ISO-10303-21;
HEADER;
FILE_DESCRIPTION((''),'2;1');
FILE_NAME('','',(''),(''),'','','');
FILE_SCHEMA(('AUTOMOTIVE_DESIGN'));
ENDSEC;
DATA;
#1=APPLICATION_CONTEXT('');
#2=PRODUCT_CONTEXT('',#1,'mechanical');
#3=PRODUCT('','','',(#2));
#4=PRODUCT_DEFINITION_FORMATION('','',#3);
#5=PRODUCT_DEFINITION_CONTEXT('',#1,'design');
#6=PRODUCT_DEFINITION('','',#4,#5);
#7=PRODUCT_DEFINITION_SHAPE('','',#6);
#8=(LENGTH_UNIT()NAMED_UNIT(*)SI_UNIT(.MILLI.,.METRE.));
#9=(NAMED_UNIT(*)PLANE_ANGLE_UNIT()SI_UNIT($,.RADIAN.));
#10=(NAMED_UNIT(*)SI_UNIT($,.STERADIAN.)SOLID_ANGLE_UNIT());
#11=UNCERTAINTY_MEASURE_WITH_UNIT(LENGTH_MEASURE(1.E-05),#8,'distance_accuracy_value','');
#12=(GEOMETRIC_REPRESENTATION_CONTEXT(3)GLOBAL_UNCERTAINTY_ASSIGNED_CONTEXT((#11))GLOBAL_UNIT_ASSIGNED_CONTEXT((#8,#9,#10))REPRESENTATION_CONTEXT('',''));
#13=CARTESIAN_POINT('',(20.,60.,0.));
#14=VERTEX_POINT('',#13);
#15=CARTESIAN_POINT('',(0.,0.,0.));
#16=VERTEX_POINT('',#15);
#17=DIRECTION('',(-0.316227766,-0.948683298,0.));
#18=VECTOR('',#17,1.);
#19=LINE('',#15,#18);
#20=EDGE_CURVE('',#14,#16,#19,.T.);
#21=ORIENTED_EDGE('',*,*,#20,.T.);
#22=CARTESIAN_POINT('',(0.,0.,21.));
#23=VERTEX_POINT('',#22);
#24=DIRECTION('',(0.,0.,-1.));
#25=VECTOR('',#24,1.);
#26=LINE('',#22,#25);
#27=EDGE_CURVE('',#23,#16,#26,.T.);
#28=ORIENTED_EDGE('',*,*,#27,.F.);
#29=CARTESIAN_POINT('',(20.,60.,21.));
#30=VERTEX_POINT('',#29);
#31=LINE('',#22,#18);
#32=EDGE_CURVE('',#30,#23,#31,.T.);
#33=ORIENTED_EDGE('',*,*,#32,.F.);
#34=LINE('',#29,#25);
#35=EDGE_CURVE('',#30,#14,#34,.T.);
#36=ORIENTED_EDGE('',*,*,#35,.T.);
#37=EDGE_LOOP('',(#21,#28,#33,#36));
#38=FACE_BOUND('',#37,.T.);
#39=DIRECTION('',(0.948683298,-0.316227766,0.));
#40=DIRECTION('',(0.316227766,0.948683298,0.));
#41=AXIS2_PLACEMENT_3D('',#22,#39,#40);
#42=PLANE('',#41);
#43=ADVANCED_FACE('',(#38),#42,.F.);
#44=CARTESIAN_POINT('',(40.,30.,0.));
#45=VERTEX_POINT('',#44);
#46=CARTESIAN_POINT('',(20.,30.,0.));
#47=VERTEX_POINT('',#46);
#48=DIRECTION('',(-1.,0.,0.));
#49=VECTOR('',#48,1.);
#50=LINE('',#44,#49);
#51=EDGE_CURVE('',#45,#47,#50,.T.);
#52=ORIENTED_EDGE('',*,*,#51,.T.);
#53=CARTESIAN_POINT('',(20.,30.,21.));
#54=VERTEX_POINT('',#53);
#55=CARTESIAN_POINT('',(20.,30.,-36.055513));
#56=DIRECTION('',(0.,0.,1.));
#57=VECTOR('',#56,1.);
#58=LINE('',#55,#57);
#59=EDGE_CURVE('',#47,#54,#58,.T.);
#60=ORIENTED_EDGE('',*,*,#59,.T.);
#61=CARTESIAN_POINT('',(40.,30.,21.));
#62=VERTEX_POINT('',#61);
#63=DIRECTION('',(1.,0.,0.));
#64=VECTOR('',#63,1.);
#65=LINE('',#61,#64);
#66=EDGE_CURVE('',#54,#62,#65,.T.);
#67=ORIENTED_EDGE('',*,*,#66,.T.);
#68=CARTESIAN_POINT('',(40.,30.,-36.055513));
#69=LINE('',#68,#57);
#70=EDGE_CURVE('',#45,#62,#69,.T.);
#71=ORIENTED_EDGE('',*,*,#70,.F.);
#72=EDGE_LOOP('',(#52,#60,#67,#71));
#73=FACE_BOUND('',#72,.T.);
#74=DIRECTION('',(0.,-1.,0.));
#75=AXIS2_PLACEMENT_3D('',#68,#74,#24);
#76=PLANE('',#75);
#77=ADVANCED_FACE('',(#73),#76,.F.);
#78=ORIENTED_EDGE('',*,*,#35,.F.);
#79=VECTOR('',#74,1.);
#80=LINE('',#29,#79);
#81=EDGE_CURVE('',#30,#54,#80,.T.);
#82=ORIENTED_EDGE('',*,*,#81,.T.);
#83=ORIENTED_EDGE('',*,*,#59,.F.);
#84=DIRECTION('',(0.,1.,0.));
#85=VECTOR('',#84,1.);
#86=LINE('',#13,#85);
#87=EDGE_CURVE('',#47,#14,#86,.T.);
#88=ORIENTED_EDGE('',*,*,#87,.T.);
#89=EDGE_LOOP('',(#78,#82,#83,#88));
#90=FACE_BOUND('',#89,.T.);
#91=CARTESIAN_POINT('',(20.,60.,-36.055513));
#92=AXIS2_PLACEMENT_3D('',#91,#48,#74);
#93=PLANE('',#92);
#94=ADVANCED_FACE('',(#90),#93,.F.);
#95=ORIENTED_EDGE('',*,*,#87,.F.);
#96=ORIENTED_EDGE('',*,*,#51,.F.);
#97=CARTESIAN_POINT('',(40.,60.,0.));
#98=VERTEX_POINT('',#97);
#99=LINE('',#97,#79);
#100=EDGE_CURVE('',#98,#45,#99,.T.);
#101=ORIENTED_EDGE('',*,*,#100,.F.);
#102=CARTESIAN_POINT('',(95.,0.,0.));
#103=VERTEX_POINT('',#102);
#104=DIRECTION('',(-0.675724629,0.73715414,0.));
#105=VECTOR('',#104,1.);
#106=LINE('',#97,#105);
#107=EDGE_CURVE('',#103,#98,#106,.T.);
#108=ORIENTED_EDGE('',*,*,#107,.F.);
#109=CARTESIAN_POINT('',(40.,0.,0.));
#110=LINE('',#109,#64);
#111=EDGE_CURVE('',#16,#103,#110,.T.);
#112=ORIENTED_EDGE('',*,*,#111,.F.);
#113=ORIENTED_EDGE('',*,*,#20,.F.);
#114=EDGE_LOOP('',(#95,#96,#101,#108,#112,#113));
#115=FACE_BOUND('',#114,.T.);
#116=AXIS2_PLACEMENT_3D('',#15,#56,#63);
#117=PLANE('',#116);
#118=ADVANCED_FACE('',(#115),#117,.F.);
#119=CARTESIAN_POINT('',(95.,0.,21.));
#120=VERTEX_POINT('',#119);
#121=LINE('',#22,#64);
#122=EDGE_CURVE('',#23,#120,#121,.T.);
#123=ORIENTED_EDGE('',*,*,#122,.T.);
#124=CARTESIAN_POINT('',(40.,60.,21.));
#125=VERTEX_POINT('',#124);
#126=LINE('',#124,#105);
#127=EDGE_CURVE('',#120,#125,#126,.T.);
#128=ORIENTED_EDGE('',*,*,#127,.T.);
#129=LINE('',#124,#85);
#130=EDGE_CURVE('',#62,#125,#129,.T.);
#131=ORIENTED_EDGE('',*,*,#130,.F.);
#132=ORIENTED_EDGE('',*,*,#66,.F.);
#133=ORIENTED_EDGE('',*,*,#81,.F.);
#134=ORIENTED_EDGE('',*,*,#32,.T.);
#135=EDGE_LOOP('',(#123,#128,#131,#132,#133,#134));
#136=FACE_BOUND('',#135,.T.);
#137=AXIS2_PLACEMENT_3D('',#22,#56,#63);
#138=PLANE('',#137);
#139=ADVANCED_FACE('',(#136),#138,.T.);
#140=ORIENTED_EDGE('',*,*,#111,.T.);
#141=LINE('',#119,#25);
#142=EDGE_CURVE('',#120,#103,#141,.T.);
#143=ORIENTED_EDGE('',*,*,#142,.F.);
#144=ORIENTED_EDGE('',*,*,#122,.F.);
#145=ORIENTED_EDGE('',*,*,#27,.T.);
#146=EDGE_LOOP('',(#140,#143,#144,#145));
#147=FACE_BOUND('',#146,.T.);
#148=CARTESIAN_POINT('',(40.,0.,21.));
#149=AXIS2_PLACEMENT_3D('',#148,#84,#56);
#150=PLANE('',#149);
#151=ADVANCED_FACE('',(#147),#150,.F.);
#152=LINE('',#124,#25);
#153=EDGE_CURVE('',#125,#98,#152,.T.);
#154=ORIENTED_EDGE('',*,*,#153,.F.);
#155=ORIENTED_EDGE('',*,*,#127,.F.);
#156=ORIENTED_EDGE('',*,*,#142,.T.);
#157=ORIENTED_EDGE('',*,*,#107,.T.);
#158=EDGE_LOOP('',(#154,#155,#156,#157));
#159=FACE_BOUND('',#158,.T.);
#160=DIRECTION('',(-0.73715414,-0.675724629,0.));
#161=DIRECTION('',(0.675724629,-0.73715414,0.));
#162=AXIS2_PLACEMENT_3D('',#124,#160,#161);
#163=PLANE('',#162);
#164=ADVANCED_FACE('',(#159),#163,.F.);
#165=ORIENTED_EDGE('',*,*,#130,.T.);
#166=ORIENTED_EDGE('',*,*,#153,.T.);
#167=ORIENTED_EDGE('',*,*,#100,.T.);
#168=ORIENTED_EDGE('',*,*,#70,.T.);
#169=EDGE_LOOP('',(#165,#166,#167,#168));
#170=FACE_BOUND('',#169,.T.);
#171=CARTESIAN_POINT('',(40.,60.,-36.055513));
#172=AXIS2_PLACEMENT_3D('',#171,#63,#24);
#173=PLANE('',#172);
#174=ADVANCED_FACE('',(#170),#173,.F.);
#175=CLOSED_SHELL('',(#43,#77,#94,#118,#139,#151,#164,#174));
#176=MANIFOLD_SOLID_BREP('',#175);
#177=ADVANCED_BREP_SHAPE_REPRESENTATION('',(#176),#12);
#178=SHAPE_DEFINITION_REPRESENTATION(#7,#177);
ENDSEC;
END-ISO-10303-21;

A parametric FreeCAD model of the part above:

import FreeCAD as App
import Part
import Sketcher

doc = App.newDocument("Part")
params = doc.addObject("Spreadsheet::Sheet", "Params")
for row, (alias, value) in enumerate([
    ("sketch1_width", "95 mm"),
    ("sketch1_width2", "20 mm"),
    ("pad1_length", "21 mm"),
    ("sketch2_width", "20 mm"),
    ("sketch2_height", "30 mm"),
    ("pocket1_length", "21 mm"),
], start=1):
    params.set(f"A{row}", alias)
    params.set(f"B{row}", "=" + value)
    params.setAlias(f"B{row}", alias)

body = doc.addObject("PartDesign::Body", "Body")

# Sketch on XY plane
sketch1 = doc.addObject("Sketcher::SketchObject", "Sketch")
body.addObject(sketch1)
sketch1.AttachmentSupport = (doc.XY_Plane, [""])
sketch1.MapMode = "FlatFace"
sketch1.addGeometry([
    Part.LineSegment(App.Vector(20, 60, 0), App.Vector(0, 0, 0)),
    Part.LineSegment(App.Vector(0, 0, 0), App.Vector(95, 0, 0)),
    Part.LineSegment(App.Vector(95, 0, 0), App.Vector(40, 60, 0)),
    Part.LineSegment(App.Vector(40, 60, 0), App.Vector(20, 60, 0)),
], False)
sketch1.addConstraint([
    Sketcher.Constraint("Coincident", 0, 2, 1, 1),
    Sketcher.Constraint("Coincident", 1, 2, 2, 1),
    Sketcher.Constraint("Coincident", 2, 2, 3, 1),
    Sketcher.Constraint("Coincident", 3, 2, 0, 1),
    Sketcher.Constraint("Horizontal", 1),
    Sketcher.Constraint("Horizontal", 3),
    Sketcher.Constraint("Coincident", 0, 2, -1, 1),
    Sketcher.Constraint("DistanceX", 1, 1, 1, 2, 95.0),
    Sketcher.Constraint("DistanceX", 3, 2, 3, 1, 20.0),
    Sketcher.Constraint("DistanceX", -1, 1, 2, 2, 40.0),
    Sketcher.Constraint("DistanceY", -1, 1, 2, 2, 60.0),
])
sketch1.setExpression("Constraints[7]", "Params.sketch1_width")
sketch1.setExpression("Constraints[8]", "Params.sketch1_width2")
pad1 = doc.addObject("PartDesign::Pad", "Pad")
body.addObject(pad1)
pad1.Profile = sketch1
pad1.setExpression("Length", "Params.pad1_length")

# Sketch on XY plane
sketch2 = doc.addObject("Sketcher::SketchObject", "Sketch001")
body.addObject(sketch2)
sketch2.AttachmentSupport = (doc.XY_Plane, [""])
sketch2.MapMode = "FlatFace"
sketch2.AttachmentOffset = App.Placement(App.Vector(0, 0, 21), App.Rotation())
sketch2.addGeometry([
    Part.LineSegment(App.Vector(20, 60, 0), App.Vector(20, 30, 0)),
    Part.LineSegment(App.Vector(20, 30, 0), App.Vector(40, 30, 0)),
    Part.LineSegment(App.Vector(40, 30, 0), App.Vector(40, 60, 0)),
    Part.LineSegment(App.Vector(40, 60, 0), App.Vector(20, 60, 0)),
], False)
sketch2.addConstraint([
    Sketcher.Constraint("Coincident", 0, 2, 1, 1),
    Sketcher.Constraint("Coincident", 1, 2, 2, 1),
    Sketcher.Constraint("Coincident", 2, 2, 3, 1),
    Sketcher.Constraint("Coincident", 3, 2, 0, 1),
    Sketcher.Constraint("Vertical", 0),
    Sketcher.Constraint("Horizontal", 1),
    Sketcher.Constraint("Vertical", 2),
    Sketcher.Constraint("Horizontal", 3),
    Sketcher.Constraint("DistanceX", 1, 1, 1, 2, 20.0),
    Sketcher.Constraint("DistanceY", 0, 2, 0, 1, 30.0),
    Sketcher.Constraint("DistanceX", -1, 1, 0, 2, 20.0),
    Sketcher.Constraint("DistanceY", -1, 1, 0, 2, 30.0),
])
sketch2.setExpression("Constraints[8]", "Params.sketch2_width")
sketch2.setExpression("Constraints[9]", "Params.sketch2_height")
pocket1 = doc.addObject("PartDesign::Pocket", "Pocket")
body.addObject(pocket1)
pocket1.Profile = sketch2
pocket1.setExpression("Length", "Params.pocket1_length")

doc.recompute()
